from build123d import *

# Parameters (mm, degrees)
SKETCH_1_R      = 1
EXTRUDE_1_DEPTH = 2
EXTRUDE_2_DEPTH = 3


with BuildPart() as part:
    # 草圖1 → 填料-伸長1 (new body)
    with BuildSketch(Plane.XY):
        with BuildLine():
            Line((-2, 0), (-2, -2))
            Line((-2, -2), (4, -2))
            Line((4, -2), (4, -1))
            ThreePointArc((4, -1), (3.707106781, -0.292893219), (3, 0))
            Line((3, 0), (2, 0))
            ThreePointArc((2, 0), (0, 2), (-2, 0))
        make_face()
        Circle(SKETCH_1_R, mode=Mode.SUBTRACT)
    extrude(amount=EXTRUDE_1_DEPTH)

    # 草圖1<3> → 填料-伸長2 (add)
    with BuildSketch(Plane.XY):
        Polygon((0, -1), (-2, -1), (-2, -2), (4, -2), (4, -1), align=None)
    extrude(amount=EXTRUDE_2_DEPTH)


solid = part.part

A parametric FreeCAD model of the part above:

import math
import FreeCAD as App
import Part
import Sketcher

doc = App.newDocument("Part")
params = doc.addObject("Spreadsheet::Sheet", "Params")
for row, (alias, value) in enumerate([
    ("sketch1_diameter", "2 mm"),
    ("sketch1_radius", "2 mm"),
    ("sketch1_width", "6 mm"),
    ("pad1_length", "2 mm"),
    ("sketch2_width", "6 mm"),
    ("sketch2_height", "1 mm"),
    ("pad2_length", "3 mm"),
], start=1):
    params.set(f"A{row}", alias)
    params.set(f"B{row}", "=" + value)
    params.setAlias(f"B{row}", alias)

body = doc.addObject("PartDesign::Body", "Body")

# Sketch on XY plane
sketch1 = body.newObject("Sketcher::SketchObject", "Sketch")
sketch1.AttachmentSupport = (doc.getObject("XY_Plane"), [""])
sketch1.MapMode = "FlatFace"
sketch1.addGeometry([
    Part.LineSegment(App.Vector(-2, 0, 0), App.Vector(-2, -2, 0)),  # 0
    Part.LineSegment(App.Vector(-2, -2, 0), App.Vector(4, -2, 0)),  # 1
    Part.LineSegment(App.Vector(4, -2, 0), App.Vector(4, -1, 0)),  # 2
    Part.ArcOfCircle(Part.Circle(App.Vector(3, -1, 0), App.Vector(0, 0, 1), 1), math.radians(0), math.radians(90)),  # 3
    Part.LineSegment(App.Vector(3, 0, 0), App.Vector(2, 0, 0)),  # 4
    Part.ArcOfCircle(Part.Circle(App.Vector(0, 0, 0), App.Vector(0, 0, 1), 2), math.radians(0), math.radians(180)),  # 5
    Part.Circle(App.Vector(0, 0, 0), App.Vector(0, 0, 1), 1),  # 6
], False)
sketch1.addConstraint([
    Sketcher.Constraint("Coincident", 0, 2, 1, 1),
    Sketcher.Constraint("Coincident", 1, 2, 2, 1),
    Sketcher.Constraint("Tangent", 2, 2, 3, 1),
    Sketcher.Constraint("Tangent", 3, 2, 4, 1),
    Sketcher.Constraint("Coincident", 4, 2, 5, 1),
    Sketcher.Constraint("Tangent", 5, 2, 0, 1),
    Sketcher.Constraint("Vertical", 0),
    Sketcher.Constraint("Horizontal", 1),
    Sketcher.Constraint("Vertical", 2),
    Sketcher.Constraint("Horizontal", 4),
    Sketcher.Constraint("Coincident", 5, 3, -1, 1),
    Sketcher.Constraint("Coincident", 6, 3, -1, 1),
    Sketcher.Constraint("Equal", 3, 6),
    Sketcher.Constraint("PointOnObject", 3, 2, -1),
    Sketcher.Constraint("Equal", 4, 2),
    Sketcher.Constraint("Diameter", 6, 2.0),
    Sketcher.Constraint("Radius", 5, 2.0),
    Sketcher.Constraint("DistanceX", 1, 1, 1, 2, 6.0),
])
sketch1.setExpression("Constraints[15]", "Params.sketch1_diameter")
sketch1.setExpression("Constraints[16]", "Params.sketch1_radius")
sketch1.setExpression("Constraints[17]", "Params.sketch1_width")
pad1 = body.newObject("PartDesign::Pad", "Pad")
pad1.Profile = sketch1
pad1.setExpression("Length", "Params.pad1_length")

# Sketch on XY plane
sketch2 = body.newObject("Sketcher::SketchObject", "Sketch001")
sketch2.AttachmentSupport = (doc.getObject("XY_Plane"), [""])
sketch2.MapMode = "FlatFace"
sketch2.addGeometry([
    Part.LineSegment(App.Vector(-2, -1, 0), App.Vector(-2, -2, 0)),
    Part.LineSegment(App.Vector(-2, -2, 0), App.Vector(4, -2, 0)),
    Part.LineSegment(App.Vector(4, -2, 0), App.Vector(4, -1, 0)),
    Part.LineSegment(App.Vector(4, -1, 0), App.Vector(-2, -1, 0)),
], False)
sketch2.addConstraint([
    Sketcher.Constraint("Coincident", 0, 2, 1, 1),
    Sketcher.Constraint("Coincident", 1, 2, 2, 1),
    Sketcher.Constraint("Coincident", 2, 2, 3, 1),
    Sketcher.Constraint("Coincident", 3, 2, 0, 1),
    Sketcher.Constraint("Vertical", 0),
    Sketcher.Constraint("Horizontal", 1),
    Sketcher.Constraint("Vertical", 2),
    Sketcher.Constraint("Horizontal", 3),
    Sketcher.Constraint("DistanceX", 1, 1, 1, 2, 6.0),
    Sketcher.Constraint("DistanceY", 0, 2, 0, 1, 1.0),
    Sketcher.Constraint("DistanceX", 0, 2, -1, 1, 2.0),
    Sketcher.Constraint("DistanceY", 0, 2, -1, 1, 2.0),
])
sketch2.setExpression("Constraints[8]", "Params.sketch2_width")
sketch2.setExpression("Constraints[9]", "Params.sketch2_height")
pad2 = body.newObject("PartDesign::Pad", "Pad001")
pad2.Profile = sketch2
pad2.setExpression("Length", "Params.pad2_length")

doc.recompute()
